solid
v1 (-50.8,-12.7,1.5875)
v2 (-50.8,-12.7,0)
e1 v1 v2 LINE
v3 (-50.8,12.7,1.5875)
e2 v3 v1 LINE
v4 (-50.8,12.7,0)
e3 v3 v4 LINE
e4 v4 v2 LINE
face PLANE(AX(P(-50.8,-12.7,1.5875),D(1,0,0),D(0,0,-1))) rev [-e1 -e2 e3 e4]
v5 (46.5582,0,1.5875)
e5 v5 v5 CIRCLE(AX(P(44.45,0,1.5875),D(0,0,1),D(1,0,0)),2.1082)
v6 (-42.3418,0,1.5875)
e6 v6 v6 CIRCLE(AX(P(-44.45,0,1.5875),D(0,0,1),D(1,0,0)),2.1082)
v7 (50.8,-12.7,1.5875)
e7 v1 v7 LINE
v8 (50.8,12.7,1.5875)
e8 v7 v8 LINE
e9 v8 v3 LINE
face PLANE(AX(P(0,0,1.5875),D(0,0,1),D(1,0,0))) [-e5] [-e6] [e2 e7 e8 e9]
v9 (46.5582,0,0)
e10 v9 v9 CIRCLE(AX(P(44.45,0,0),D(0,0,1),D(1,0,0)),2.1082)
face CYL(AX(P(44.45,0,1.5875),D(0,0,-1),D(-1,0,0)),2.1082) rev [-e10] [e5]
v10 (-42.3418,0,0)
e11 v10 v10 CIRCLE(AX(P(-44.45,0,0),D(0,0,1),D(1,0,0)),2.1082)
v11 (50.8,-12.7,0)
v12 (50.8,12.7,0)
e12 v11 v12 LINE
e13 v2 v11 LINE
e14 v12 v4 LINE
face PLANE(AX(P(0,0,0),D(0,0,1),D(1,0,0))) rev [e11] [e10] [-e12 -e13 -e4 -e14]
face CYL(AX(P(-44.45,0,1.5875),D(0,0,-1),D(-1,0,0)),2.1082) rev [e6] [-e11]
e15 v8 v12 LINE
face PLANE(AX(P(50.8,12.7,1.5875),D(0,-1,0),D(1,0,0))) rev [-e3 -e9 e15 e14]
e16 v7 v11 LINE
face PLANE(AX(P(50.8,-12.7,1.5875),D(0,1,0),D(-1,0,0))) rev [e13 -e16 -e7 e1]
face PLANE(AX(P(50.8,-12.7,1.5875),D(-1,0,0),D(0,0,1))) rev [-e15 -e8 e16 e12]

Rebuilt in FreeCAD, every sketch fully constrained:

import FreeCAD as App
import Part
import Sketcher
Q = App.Units.Quantity


def add_polygon(sketch, points):
    """Adds a closed chain of lines whose ends are joined by coincident constraints."""
    first, n = sketch.GeometryCount, len(points)
    for a, b in zip(points, points[1:] + points[:1]):
        sketch.addGeometry(Part.LineSegment(App.Vector(*a, 0), App.Vector(*b, 0)), False)
    for i in range(n):
        sketch.addConstraint(Sketcher.Constraint("Coincident", first + i, 2, first + (i + 1) % n, 1))

doc = App.newDocument("Part")
body = doc.addObject("PartDesign::Body", "Body")

# Sketch on XY plane
sketch1 = body.newObject("Sketcher::SketchObject", "Sketch")
sketch1.AttachmentSupport = (doc.getObject("XY_Plane"), [""])
sketch1.MapMode = "FlatFace"
add_polygon(sketch1, [(-50.8, 12.7), (-50.8, -12.7), (50.8, -12.7), (50.8, 12.7)])  # lines 0-3
sketch1.addGeometry(Part.Circle(App.Vector(-44.5, 0, 0), App.Vector(0, 0, 1), 2.1), False)  # 4
sketch1.addGeometry(Part.Circle(App.Vector(44.5, 0, 0), App.Vector(0, 0, 1), 2.1), False)  # 5
sketch1.addConstraint([
    Sketcher.Constraint("Vertical", 0),
    Sketcher.Constraint("Horizontal", 1),
    Sketcher.Constraint("Vertical", 2),
    Sketcher.Constraint("Horizontal", 3),
    Sketcher.Constraint("Equal", 4, 5),
    Sketcher.Constraint("Symmetric", 4, 3, 5, 3, -1, 1),
    Sketcher.Constraint("Symmetric", 0, 2, 2, 2, -1, 1),
    Sketcher.Constraint("PointOnObject", 4, 3, -1),
    Sketcher.Constraint("DistanceX", 1, 1, 1, 2, Q("4 in")),
    Sketcher.Constraint("DistanceY", 0, 2, 0, 1, Q("1 in")),
    Sketcher.Constraint("Diameter", 4, Q("0.166 in")),
    Sketcher.Constraint("DistanceX", 4, 3, 5, 3, Q("3.5 in")),
])
pad1 = body.newObject("PartDesign::Pad", "Pad")
pad1.Profile = sketch1
pad1.Length = Q("0.0625 in")

doc.recompute()
